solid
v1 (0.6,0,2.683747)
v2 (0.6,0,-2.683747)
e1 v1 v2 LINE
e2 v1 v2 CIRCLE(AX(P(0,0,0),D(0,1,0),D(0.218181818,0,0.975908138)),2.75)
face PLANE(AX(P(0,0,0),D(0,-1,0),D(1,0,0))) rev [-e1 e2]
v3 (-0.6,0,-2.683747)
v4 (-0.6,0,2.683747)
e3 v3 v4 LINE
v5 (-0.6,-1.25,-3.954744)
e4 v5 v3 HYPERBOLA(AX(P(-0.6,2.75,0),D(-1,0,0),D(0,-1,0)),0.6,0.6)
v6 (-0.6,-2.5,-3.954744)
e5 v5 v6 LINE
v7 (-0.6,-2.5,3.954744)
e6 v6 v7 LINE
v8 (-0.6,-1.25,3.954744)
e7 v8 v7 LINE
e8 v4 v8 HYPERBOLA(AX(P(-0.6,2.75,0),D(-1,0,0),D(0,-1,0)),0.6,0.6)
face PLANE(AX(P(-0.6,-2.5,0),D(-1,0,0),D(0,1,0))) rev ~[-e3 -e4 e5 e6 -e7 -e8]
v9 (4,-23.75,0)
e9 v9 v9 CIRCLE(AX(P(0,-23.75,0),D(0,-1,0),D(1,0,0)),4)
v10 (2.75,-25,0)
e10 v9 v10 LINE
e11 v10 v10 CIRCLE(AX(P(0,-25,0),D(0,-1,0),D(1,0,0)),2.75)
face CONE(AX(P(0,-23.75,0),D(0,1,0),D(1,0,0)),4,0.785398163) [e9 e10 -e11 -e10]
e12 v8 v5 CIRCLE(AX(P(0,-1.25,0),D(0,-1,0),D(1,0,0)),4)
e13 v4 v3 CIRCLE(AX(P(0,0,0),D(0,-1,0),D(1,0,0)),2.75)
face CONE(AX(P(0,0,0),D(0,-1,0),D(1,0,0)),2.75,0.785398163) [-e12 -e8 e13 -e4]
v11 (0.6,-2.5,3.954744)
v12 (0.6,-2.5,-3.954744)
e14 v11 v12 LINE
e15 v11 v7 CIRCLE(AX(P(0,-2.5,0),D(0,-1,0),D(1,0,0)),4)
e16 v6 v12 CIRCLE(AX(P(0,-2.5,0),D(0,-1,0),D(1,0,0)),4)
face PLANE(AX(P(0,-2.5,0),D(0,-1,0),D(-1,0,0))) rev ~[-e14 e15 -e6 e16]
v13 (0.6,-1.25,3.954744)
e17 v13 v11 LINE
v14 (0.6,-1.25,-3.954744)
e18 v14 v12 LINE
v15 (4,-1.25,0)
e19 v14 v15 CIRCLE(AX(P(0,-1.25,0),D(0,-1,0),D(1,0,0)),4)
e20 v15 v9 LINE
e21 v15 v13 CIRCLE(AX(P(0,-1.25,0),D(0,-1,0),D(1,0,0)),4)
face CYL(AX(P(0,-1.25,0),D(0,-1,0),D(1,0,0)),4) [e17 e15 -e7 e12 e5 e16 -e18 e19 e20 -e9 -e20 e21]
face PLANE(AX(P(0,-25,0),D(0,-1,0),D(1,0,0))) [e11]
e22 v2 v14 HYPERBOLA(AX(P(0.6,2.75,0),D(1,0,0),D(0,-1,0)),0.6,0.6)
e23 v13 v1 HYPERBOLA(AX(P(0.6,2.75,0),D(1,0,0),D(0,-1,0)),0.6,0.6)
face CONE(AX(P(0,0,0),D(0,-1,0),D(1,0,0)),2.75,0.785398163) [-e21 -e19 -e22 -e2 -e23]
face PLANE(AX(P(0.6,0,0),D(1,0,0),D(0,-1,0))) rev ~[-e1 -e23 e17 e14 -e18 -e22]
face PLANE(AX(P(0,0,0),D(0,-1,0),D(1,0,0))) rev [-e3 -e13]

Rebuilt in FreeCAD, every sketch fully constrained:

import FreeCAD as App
import Part
import Sketcher
from FreeCAD import Vector
Q = App.Units.Quantity


def edges_at(feature, points):
    """Names of the edges that pass closest to the given points."""
    edges = feature.Shape.Edges
    near = lambda p: min(range(len(edges)), key=lambda i: edges[i].distToShape(Part.Vertex(*p))[0])
    return sorted({f"Edge{near(p) + 1}" for p in points})

doc = App.newDocument("Part")
params = doc.addObject("Spreadsheet::Sheet", "Params")
for row, (alias, value) in enumerate([
    ("sketch1_height", "25 mm"),
    ("sketch1_width", "4 mm"),
    ("sketch1_width2", "2.75 mm"),
    ("revolution_angle", "360 deg"),
    ("sketch2_width", "1.2 mm"),
    ("sketch2_height", "2.5 mm"),
    ("chamfer_size", "1.25 mm"),
], start=1):
    params.set(f"A{row}", alias)
    params.set(f"B{row}", "=" + value)
    params.setAlias(f"B{row}", alias)

body = doc.addObject("PartDesign::Body", "Body")

sketch1 = doc.addObject("Sketcher::SketchObject", "Sketch")
body.addObject(sketch1)
sketch1.AttachmentSupport = (doc.XY_Plane, [""])
sketch1.MapMode = "FlatFace"
sketch1.addGeometry([
    Part.LineSegment(Vector(2.8, 0, 0), Vector(0, 0, 0)),
    Part.LineSegment(Vector(0, 0, 0), Vector(0, -25, 0)),
    Part.LineSegment(Vector(0, -25, 0), Vector(4, -25, 0)),
    Part.LineSegment(Vector(4, -25, 0), Vector(4, -1.2, 0)),
    Part.LineSegment(Vector(4, -1.2, 0), Vector(2.8, 0, 0)),
], False)
sketch1.addConstraint([
    Sketcher.Constraint("Coincident", 0, 2, 1, 1),
    Sketcher.Constraint("Coincident", 1, 2, 2, 1),
    Sketcher.Constraint("Coincident", 2, 2, 3, 1),
    Sketcher.Constraint("Coincident", 3, 2, 4, 1),
    Sketcher.Constraint("Coincident", 4, 2, 0, 1),
    Sketcher.Constraint("Horizontal", 0),
    Sketcher.Constraint("Vertical", 1),
    Sketcher.Constraint("Horizontal", 2),
    Sketcher.Constraint("Vertical", 3),
    Sketcher.Constraint("Coincident", 0, 2, -1, 1),
    Sketcher.Constraint("DistanceY", 1, 2, 1, 1, 25.0),
    Sketcher.Constraint("DistanceX", 2, 1, 2, 2, 4.0),
    Sketcher.Constraint("Angle", 4, Q("135 deg")),
    Sketcher.Constraint("DistanceX", 0, 2, 0, 1, 2.75),
])
sketch1.setExpression("Constraints[10]", "Params.sketch1_height")
sketch1.setExpression("Constraints[11]", "Params.sketch1_width")
sketch1.setExpression("Constraints[13]", "Params.sketch1_width2")
revolution = doc.addObject("PartDesign::Revolution", "Revolution")
body.addObject(revolution)
revolution.Profile = sketch1
revolution.ReferenceAxis = (sketch1, ["V_Axis"])
revolution.setExpression("Angle", "Params.revolution_angle")

sketch2 = doc.addObject("Sketcher::SketchObject", "Sketch001")
body.addObject(sketch2)
sketch2.AttachmentSupport = (doc.XY_Plane, [""])
sketch2.MapMode = "FlatFace"
sketch2.addGeometry([
    Part.LineSegment(Vector(-0.6, 0, 0), Vector(-0.6, -2.5, 0)),
    Part.LineSegment(Vector(-0.6, -2.5, 0), Vector(0.6, -2.5, 0)),
    Part.LineSegment(Vector(0.6, -2.5, 0), Vector(0.6, 0, 0)),
    Part.LineSegment(Vector(0.6, 0, 0), Vector(-0.6, 0, 0)),
], False)
sketch2.addConstraint([
    Sketcher.Constraint("Coincident", 0, 2, 1, 1),
    Sketcher.Constraint("Coincident", 1, 2, 2, 1),
    Sketcher.Constraint("Coincident", 2, 2, 3, 1),
    Sketcher.Constraint("Coincident", 3, 2, 0, 1),
    Sketcher.Constraint("Vertical", 0),
    Sketcher.Constraint("Horizontal", 1),
    Sketcher.Constraint("Vertical", 2),
    Sketcher.Constraint("Horizontal", 3),
    Sketcher.Constraint("Symmetric", 2, 2, 3, 2, -1, 1),
    Sketcher.Constraint("DistanceX", 1, 1, 1, 2, 1.2),
    Sketcher.Constraint("DistanceY", 0, 2, 0, 1, 2.5),
])
sketch2.setExpression("Constraints[9]", "Params.sketch2_width")
sketch2.setExpression("Constraints[10]", "Params.sketch2_height")
pocket1 = doc.addObject("PartDesign::Pocket", "Pocket")
body.addObject(pocket1)
pocket1.Profile = sketch2
pocket1.Type = "ThroughAll"
pocket1.Midplane = True
doc.recompute()

chamfer = doc.addObject("PartDesign::Chamfer", "Chamfer")
body.addObject(chamfer)
chamfer.Base = (pocket1, edges_at(pocket1, [(-4, -25, 0)]))
chamfer.setExpression("Size", "Params.chamfer_size")

doc.recompute()
